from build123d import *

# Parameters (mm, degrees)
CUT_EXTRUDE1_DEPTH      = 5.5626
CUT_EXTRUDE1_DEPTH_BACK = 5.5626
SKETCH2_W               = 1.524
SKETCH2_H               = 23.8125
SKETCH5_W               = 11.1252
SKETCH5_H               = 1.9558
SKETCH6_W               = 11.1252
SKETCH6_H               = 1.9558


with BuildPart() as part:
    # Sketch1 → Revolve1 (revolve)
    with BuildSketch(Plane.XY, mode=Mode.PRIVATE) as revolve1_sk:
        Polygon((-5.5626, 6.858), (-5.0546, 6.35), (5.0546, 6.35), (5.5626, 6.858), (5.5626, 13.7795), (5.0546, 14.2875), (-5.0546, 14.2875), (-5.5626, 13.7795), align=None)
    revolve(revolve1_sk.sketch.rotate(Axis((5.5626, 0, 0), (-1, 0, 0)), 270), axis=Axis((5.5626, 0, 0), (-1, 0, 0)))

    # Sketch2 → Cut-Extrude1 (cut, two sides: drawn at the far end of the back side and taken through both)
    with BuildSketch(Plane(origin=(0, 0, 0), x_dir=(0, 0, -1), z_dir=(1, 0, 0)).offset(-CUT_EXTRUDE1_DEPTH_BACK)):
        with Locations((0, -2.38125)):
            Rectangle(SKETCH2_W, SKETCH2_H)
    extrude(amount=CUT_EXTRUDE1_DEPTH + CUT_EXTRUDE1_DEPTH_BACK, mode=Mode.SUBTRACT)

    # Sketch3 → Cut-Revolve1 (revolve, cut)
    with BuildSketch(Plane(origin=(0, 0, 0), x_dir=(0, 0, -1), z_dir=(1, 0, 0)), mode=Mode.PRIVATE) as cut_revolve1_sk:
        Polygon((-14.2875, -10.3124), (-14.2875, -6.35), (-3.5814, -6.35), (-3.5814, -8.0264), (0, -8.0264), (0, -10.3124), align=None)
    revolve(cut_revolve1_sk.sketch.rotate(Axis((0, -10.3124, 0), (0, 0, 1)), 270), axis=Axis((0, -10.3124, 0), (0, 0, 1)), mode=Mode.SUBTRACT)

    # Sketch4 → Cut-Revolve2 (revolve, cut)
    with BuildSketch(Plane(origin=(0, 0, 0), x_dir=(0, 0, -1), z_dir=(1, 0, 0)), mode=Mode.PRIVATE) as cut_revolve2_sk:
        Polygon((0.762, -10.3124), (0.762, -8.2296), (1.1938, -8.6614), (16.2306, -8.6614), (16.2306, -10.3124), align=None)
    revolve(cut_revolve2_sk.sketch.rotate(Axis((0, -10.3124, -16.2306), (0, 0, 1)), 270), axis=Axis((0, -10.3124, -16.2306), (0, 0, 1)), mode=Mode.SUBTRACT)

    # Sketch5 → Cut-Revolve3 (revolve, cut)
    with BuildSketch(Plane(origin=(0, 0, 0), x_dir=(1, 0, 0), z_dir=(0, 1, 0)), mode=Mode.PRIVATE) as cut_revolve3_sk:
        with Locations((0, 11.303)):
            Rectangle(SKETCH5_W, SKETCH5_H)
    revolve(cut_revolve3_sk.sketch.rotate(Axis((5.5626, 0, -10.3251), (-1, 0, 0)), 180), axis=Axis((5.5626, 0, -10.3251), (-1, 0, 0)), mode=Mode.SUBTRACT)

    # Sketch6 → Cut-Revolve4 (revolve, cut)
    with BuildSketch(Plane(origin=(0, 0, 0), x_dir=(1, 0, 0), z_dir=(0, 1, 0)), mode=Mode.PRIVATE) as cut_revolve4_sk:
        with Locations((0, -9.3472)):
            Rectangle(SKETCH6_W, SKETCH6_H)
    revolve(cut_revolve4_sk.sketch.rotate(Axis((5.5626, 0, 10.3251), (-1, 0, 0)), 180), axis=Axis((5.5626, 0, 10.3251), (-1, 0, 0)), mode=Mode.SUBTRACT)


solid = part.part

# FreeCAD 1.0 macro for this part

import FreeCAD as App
import Part
import Sketcher
from FreeCAD import Vector
Q = App.Units.Quantity

doc = App.newDocument("Part")
body = doc.addObject("PartDesign::Body", "Body")

# Sketch on XY plane
sketch1 = body.newObject("Sketcher::SketchObject", "Sketch")
sketch1.AttachmentSupport = (doc.getObject("XY_Plane"), [""])
sketch1.MapMode = "FlatFace"
sketch1.addGeometry([
    Part.LineSegment(Vector(-5.6, 6.9, 0), Vector(-5.1, 6.3, 0)),  # 0
    Part.LineSegment(Vector(-5.1, 6.3, 0), Vector(5.1, 6.3, 0)),  # 1
    Part.LineSegment(Vector(5.1, 6.3, 0), Vector(5.6, 6.9, 0)),  # 2
    Part.LineSegment(Vector(5.6, 6.9, 0), Vector(5.6, 13.8, 0)),  # 3
    Part.LineSegment(Vector(5.6, 13.8, 0), Vector(5.1, 14.3, 0)),  # 4
    Part.LineSegment(Vector(5.1, 14.3, 0), Vector(-5.1, 14.3, 0)),  # 5
    Part.LineSegment(Vector(-5.1, 14.3, 0), Vector(-5.6, 13.8, 0)),  # 6
    Part.LineSegment(Vector(-5.6, 13.8, 0), Vector(-5.6, 6.9, 0)),  # 7
], False)
sketch1.addConstraint([
    Sketcher.Constraint("Coincident", 0, 2, 1, 1),
    Sketcher.Constraint("Coincident", 1, 2, 2, 1),
    Sketcher.Constraint("Coincident", 2, 2, 3, 1),
    Sketcher.Constraint("Coincident", 3, 2, 4, 1),
    Sketcher.Constraint("Coincident", 4, 2, 5, 1),
    Sketcher.Constraint("Coincident", 5, 2, 6, 1),
    Sketcher.Constraint("Coincident", 6, 2, 7, 1),
    Sketcher.Constraint("Coincident", 7, 2, 0, 1),
    Sketcher.Constraint("Horizontal", 1),
    Sketcher.Constraint("Vertical", 3),
    Sketcher.Constraint("Horizontal", 5),
    Sketcher.Constraint("Vertical", 7),
    Sketcher.Constraint("Symmetric", 3, 2, 6, 2, -2),
    Sketcher.Constraint("Perpendicular", 0, 2),
    Sketcher.Constraint("Perpendicular", 2, 4),
    Sketcher.Constraint("Perpendicular", 4, 6),
    Sketcher.Constraint("Horizontal", 2, 2, 7, 2),
    Sketcher.Constraint("Vertical", 1, 2, 4, 2),
    Sketcher.Constraint("Vertical", 0, 2, 5, 2),
    Sketcher.Constraint("DistanceX", 1, 1, 1, 2, Q("0.398 in")),
    Sketcher.Constraint("DistanceY", -1, 1, 0, 2, Q("0.25 in")),
    Sketcher.Constraint("DistanceY", -1, 1, 2, 2, Q("0.27 in")),
    Sketcher.Constraint("DistanceY", 3, 1, 3, 2, Q("0.2725 in")),
])
revolution = body.newObject("PartDesign::Revolution", "Revolution")
revolution.Profile = sketch1
revolution.ReferenceAxis = (sketch1, ["H_Axis"])
revolution.Angle = 360

# Sketch on YZ plane
sketch2 = body.newObject("Sketcher::SketchObject", "Sketch001")
sketch2.AttachmentSupport = (doc.getObject("YZ_Plane"), [""])
sketch2.MapMode = "FlatFace"
sketch2.addGeometry([
    Part.LineSegment(Vector(9.5, 0.8, 0), Vector(-14.3, 0.8, 0)),
    Part.LineSegment(Vector(-14.3, 0.8, 0), Vector(-14.3, -0.8, 0)),
    Part.LineSegment(Vector(-14.3, -0.8, 0), Vector(9.5, -0.8, 0)),
    Part.LineSegment(Vector(9.5, -0.8, 0), Vector(9.5, 0.8, 0)),
], False)
sketch2.addConstraint([
    Sketcher.Constraint("Coincident", 0, 2, 1, 1),
    Sketcher.Constraint("Coincident", 1, 2, 2, 1),
    Sketcher.Constraint("Coincident", 2, 2, 3, 1),
    Sketcher.Constraint("Coincident", 3, 2, 0, 1),
    Sketcher.Constraint("Horizontal", 0),
    Sketcher.Constraint("Vertical", 1),
    Sketcher.Constraint("Horizontal", 2),
    Sketcher.Constraint("Vertical", 3),
    Sketcher.Constraint("DistanceY", 1, 2, 1, 1, Q("0.06 in")),
    Sketcher.Constraint("DistanceX", 0, 2, 0, 1, Q("0.9375 in")),
    Sketcher.Constraint("DistanceY", -1, 1, 0, 2, Q("0.03 in")),
    Sketcher.Constraint("DistanceX", 0, 2, -1, 1, Q("0.5625 in")),
])
pocket1 = body.newObject("PartDesign::Pocket", "Pocket")
pocket1.Profile = sketch2
pocket1.Type = "ThroughAll"
pocket1.Midplane = True

# Sketch on YZ plane
sketch3 = body.newObject("Sketcher::SketchObject", "Sketch002")
sketch3.AttachmentSupport = (doc.getObject("YZ_Plane"), [""])
sketch3.MapMode = "FlatFace"
sketch3.addGeometry([
    Part.LineSegment(Vector(-6.3, 14.3, 0), Vector(-10.3, 14.3, 0)),  # 0
    Part.LineSegment(Vector(-10.3, 14.3, 0), Vector(-10.3, 0, 0)),  # 1
    Part.LineSegment(Vector(-10.3, 0, 0), Vector(-8, 0, 0)),  # 2
    Part.LineSegment(Vector(-8, 0, 0), Vector(-8, 3.6, 0)),  # 3
    Part.LineSegment(Vector(-8, 3.6, 0), Vector(-6.3, 3.6, 0)),  # 4
    Part.LineSegment(Vector(-6.3, 3.6, 0), Vector(-6.3, 14.3, 0)),  # 5
], False)
sketch3.addGeometry(Part.LineSegment(Vector(-10.3, 0, 0), Vector(-10.3, 14.3, 0)), True)  # axis
sketch3.addConstraint([
    Sketcher.Constraint("Coincident", 0, 2, 1, 1),
    Sketcher.Constraint("Coincident", 1, 2, 2, 1),
    Sketcher.Constraint("Coincident", 2, 2, 3, 1),
    Sketcher.Constraint("Coincident", 3, 2, 4, 1),
    Sketcher.Constraint("Coincident", 4, 2, 5, 1),
    Sketcher.Constraint("Coincident", 5, 2, 0, 1),
    Sketcher.Constraint("Horizontal", 0),
    Sketcher.Constraint("Vertical", 1),
    Sketcher.Constraint("Horizontal", 2),
    Sketcher.Constraint("Vertical", 3),
    Sketcher.Constraint("Horizontal", 4),
    Sketcher.Constraint("Vertical", 5),
    Sketcher.Constraint("Vertical", 6),
    Sketcher.Constraint("Coincident", 6, 1, 1, 2),
    Sketcher.Constraint("PointOnObject", 1, 2, -1),
    Sketcher.Constraint("Horizontal", 5, 2, 6, 2),
    Sketcher.Constraint("DistanceX", 2, 1, 2, 2, Q("0.09 in")),
    Sketcher.Constraint("DistanceX", 0, 2, 0, 1, Q("0.156 in")),
    Sketcher.Constraint("DistanceY", 1, 2, 1, 1, Q("0.5625 in")),
    Sketcher.Constraint("DistanceY", 3, 1, 3, 2, Q("0.141 in")),
    Sketcher.Constraint("DistanceX", 4, 2, -1, 1, Q("0.25 in")),
])
groove = body.newObject("PartDesign::Groove", "Groove")
groove.Profile = sketch3
groove.ReferenceAxis = (sketch3, ["Axis0"])
groove.Angle = 360

# Sketch on YZ plane
sketch4 = body.newObject("Sketcher::SketchObject", "Sketch003")
sketch4.AttachmentSupport = (doc.getObject("YZ_Plane"), [""])
sketch4.MapMode = "FlatFace"
sketch4.addGeometry([
    Part.LineSegment(Vector(-8.2, -0.8, 0), Vector(-10.3, -0.8, 0)),  # 0
    Part.LineSegment(Vector(-10.3, -0.8, 0), Vector(-10.3, -16.2, 0)),  # 1
    Part.LineSegment(Vector(-10.3, -16.2, 0), Vector(-8.7, -16.2, 0)),  # 2
    Part.LineSegment(Vector(-8.7, -16.2, 0), Vector(-8.7, -1.2, 0)),  # 3
    Part.LineSegment(Vector(-8.7, -1.2, 0), Vector(-8.2, -0.8, 0)),  # 4
], False)
sketch4.addGeometry(Part.LineSegment(Vector(-10.3, -16.2, 0), Vector(-10.3, -0.8, 0)), True)  # axis
sketch4.addConstraint([
    Sketcher.Constraint("Coincident", 0, 2, 1, 1),
    Sketcher.Constraint("Coincident", 1, 2, 2, 1),
    Sketcher.Constraint("Coincident", 2, 2, 3, 1),
    Sketcher.Constraint("Coincident", 3, 2, 4, 1),
    Sketcher.Constraint("Coincident", 4, 2, 0, 1),
    Sketcher.Constraint("Horizontal", 0),
    Sketcher.Constraint("Vertical", 1),
    Sketcher.Constraint("Horizontal", 2),
    Sketcher.Constraint("Vertical", 3),
    Sketcher.Constraint("Vertical", 5),
    Sketcher.Constraint("Coincident", 5, 1, 1, 2),
    Sketcher.Constraint("Horizontal", 4, 2, 5, 2),
    Sketcher.Constraint("Angle", 4, Q("45 deg")),
    Sketcher.Constraint("DistanceX", 0, 2, 0, 1, Q("0.082 in")),
    Sketcher.Constraint("DistanceX", 2, 1, 2, 2, Q("0.065 in")),
    Sketcher.Constraint("DistanceY", 1, 2, 1, 1, Q("0.609 in")),
    Sketcher.Constraint("DistanceY", 0, 2, -1, 1, Q("0.03 in")),
    Sketcher.Constraint("DistanceX", 0, 2, -1, 1, Q("0.406 in")),
])
groove2 = body.newObject("PartDesign::Groove", "Groove001")
groove2.Profile = sketch4
groove2.ReferenceAxis = (sketch4, ["Axis0"])
groove2.Angle = 360

# Sketch on XZ plane
sketch5 = body.newObject("Sketcher::SketchObject", "Sketch004")
sketch5.AttachmentSupport = (doc.getObject("XZ_Plane"), [""])
sketch5.MapMode = "FlatFace"
sketch5.addGeometry([
    Part.LineSegment(Vector(-5.6, -12.3, 0), Vector(-5.6, -10.3, 0)),
    Part.LineSegment(Vector(-5.6, -10.3, 0), Vector(5.6, -10.3, 0)),
    Part.LineSegment(Vector(5.6, -10.3, 0), Vector(5.6, -12.3, 0)),
    Part.LineSegment(Vector(5.6, -12.3, 0), Vector(-5.6, -12.3, 0)),
], False)
sketch5.addGeometry(Part.LineSegment(Vector(5.6, -10.3, 0), Vector(-5.6, -10.3, 0)), True)  # axis
sketch5.addConstraint([
    Sketcher.Constraint("Coincident", 0, 2, 1, 1),
    Sketcher.Constraint("Coincident", 1, 2, 2, 1),
    Sketcher.Constraint("Coincident", 2, 2, 3, 1),
    Sketcher.Constraint("Coincident", 3, 2, 0, 1),
    Sketcher.Constraint("Vertical", 0),
    Sketcher.Constraint("Horizontal", 1),
    Sketcher.Constraint("Vertical", 2),
    Sketcher.Constraint("Horizontal", 3),
    Sketcher.Constraint("Horizontal", 4),
    Sketcher.Constraint("Coincident", 4, 1, 1, 2),
    Sketcher.Constraint("Vertical", 3, 2, 4, 2),
    Sketcher.Constraint("DistanceX", 1, 1, 1, 2, Q("0.438 in")),
    Sketcher.Constraint("DistanceY", 0, 1, 0, 2, Q("0.077 in")),
    Sketcher.Constraint("DistanceX", 0, 2, -1, 1, Q("0.219 in")),
    Sketcher.Constraint("DistanceY", 0, 2, -1, 1, Q("0.4065 in")),
])
groove3 = body.newObject("PartDesign::Groove", "Groove002")
groove3.Profile = sketch5
groove3.ReferenceAxis = (sketch5, ["Axis0"])
groove3.Angle = 360

# Sketch on XZ plane
sketch6 = body.newObject("Sketcher::SketchObject", "Sketch005")
sketch6.AttachmentSupport = (doc.getObject("XZ_Plane"), [""])
sketch6.MapMode = "FlatFace"
sketch6.addGeometry([
    Part.LineSegment(Vector(-5.6, 8.4, 0), Vector(-5.6, 10.3, 0)),
    Part.LineSegment(Vector(-5.6, 10.3, 0), Vector(5.6, 10.3, 0)),
    Part.LineSegment(Vector(5.6, 10.3, 0), Vector(5.6, 8.4, 0)),
    Part.LineSegment(Vector(5.6, 8.4, 0), Vector(-5.6, 8.4, 0)),
], False)
sketch6.addGeometry(Part.LineSegment(Vector(5.6, 10.3, 0), Vector(-5.6, 10.3, 0)), True)  # axis
sketch6.addConstraint([
    Sketcher.Constraint("Coincident", 0, 2, 1, 1),
    Sketcher.Constraint("Coincident", 1, 2, 2, 1),
    Sketcher.Constraint("Coincident", 2, 2, 3, 1),
    Sketcher.Constraint("Coincident", 3, 2, 0, 1),
    Sketcher.Constraint("Vertical", 0),
    Sketcher.Constraint("Horizontal", 1),
    Sketcher.Constraint("Vertical", 2),
    Sketcher.Constraint("Horizontal", 3),
    Sketcher.Constraint("Horizontal", 4),
    Sketcher.Constraint("Coincident", 4, 1, 1, 2),
    Sketcher.Constraint("Vertical", 3, 2, 4, 2),
    Sketcher.Constraint("DistanceX", 1, 1, 1, 2, Q("0.438 in")),
    Sketcher.Constraint("DistanceY", 0, 1, 0, 2, Q("0.077 in")),
    Sketcher.Constraint("DistanceX", 0, 2, -1, 1, Q("0.219 in")),
    Sketcher.Constraint("DistanceY", -1, 1, 0, 2, Q("0.4065 in")),
])
groove4 = body.newObject("PartDesign::Groove", "Groove003")
groove4.Profile = sketch6
groove4.ReferenceAxis = (sketch6, ["Axis0"])
groove4.Angle = 360

doc.recompute()
